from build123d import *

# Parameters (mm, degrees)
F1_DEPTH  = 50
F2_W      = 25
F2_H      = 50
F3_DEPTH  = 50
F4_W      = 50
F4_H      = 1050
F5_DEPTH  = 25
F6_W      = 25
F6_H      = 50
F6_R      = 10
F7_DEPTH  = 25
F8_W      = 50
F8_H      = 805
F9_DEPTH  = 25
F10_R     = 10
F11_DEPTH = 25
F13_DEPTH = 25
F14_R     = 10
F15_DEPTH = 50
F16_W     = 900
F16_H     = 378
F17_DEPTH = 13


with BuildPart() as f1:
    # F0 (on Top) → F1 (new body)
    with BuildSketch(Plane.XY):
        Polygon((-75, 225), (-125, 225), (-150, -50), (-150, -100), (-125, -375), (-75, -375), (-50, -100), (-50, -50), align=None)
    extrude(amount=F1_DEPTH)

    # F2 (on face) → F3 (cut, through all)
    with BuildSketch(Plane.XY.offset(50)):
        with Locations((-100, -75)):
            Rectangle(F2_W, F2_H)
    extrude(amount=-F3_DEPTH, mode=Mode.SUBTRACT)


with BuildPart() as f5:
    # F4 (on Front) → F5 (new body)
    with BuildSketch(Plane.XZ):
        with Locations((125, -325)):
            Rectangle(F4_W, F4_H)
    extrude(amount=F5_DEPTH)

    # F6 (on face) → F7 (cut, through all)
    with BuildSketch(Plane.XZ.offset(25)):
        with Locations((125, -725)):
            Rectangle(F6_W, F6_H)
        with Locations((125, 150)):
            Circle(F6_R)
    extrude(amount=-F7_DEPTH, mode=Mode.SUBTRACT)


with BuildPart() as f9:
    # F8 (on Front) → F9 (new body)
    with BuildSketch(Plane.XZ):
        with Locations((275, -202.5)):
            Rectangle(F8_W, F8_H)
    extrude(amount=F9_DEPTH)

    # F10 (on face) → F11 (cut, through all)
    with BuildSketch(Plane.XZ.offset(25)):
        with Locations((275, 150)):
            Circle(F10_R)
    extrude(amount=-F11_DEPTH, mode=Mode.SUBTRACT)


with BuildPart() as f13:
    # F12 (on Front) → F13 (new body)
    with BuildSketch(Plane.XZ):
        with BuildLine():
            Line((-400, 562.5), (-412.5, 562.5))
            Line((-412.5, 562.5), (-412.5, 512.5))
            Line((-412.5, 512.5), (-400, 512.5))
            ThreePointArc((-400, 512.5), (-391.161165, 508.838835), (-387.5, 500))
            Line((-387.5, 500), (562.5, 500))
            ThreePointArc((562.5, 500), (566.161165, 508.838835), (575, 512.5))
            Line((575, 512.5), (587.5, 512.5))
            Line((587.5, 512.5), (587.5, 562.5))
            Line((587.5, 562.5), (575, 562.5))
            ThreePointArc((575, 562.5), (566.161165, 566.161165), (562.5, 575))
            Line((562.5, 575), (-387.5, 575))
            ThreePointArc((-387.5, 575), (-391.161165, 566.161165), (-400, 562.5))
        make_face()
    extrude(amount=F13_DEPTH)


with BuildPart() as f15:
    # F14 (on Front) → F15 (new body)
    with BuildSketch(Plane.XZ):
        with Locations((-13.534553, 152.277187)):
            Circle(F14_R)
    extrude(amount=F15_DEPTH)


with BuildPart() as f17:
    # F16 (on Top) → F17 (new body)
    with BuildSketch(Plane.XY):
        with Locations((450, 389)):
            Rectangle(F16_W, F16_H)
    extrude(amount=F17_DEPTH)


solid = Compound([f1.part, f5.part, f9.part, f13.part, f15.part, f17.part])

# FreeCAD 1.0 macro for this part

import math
import FreeCAD as App
import Part
import Sketcher
Q = App.Units.Quantity

doc = App.newDocument("Part")
body = doc.addObject("PartDesign::Body", "Body")

sketch1 = doc.addObject("Sketcher::SketchObject", "Sketch")
body.addObject(sketch1)
sketch1.AttachmentSupport = (doc.XY_Plane, [""])
sketch1.MapMode = "FlatFace"
sketch1.addGeometry([
    Part.LineSegment(App.Vector(-75, 225, 0), App.Vector(-125, 225, 0)),
    Part.LineSegment(App.Vector(-125, 225, 0), App.Vector(-150, -50, 0)),
    Part.LineSegment(App.Vector(-150, -50, 0), App.Vector(-150, -100, 0)),
    Part.LineSegment(App.Vector(-150, -100, 0), App.Vector(-125, -375, 0)),
    Part.LineSegment(App.Vector(-125, -375, 0), App.Vector(-75, -375, 0)),
    Part.LineSegment(App.Vector(-75, -375, 0), App.Vector(-50, -100, 0)),
    Part.LineSegment(App.Vector(-50, -100, 0), App.Vector(-50, -50, 0)),
    Part.LineSegment(App.Vector(-50, -50, 0), App.Vector(-75, 225, 0)),
], False)
sketch1.addConstraint([
    Sketcher.Constraint("Coincident", 0, 2, 1, 1),
    Sketcher.Constraint("Coincident", 1, 2, 2, 1),
    Sketcher.Constraint("Coincident", 2, 2, 3, 1),
    Sketcher.Constraint("Coincident", 3, 2, 4, 1),
    Sketcher.Constraint("Coincident", 4, 2, 5, 1),
    Sketcher.Constraint("Coincident", 5, 2, 6, 1),
    Sketcher.Constraint("Coincident", 6, 2, 7, 1),
    Sketcher.Constraint("Coincident", 7, 2, 0, 1),
    Sketcher.Constraint("Horizontal", 0),
    Sketcher.Constraint("Vertical", 2),
    Sketcher.Constraint("Horizontal", 4),
    Sketcher.Constraint("Vertical", 6),
    Sketcher.Constraint("Parallel", 1, 5),
    Sketcher.Constraint("Parallel", 3, 7),
    Sketcher.Constraint("Horizontal", 2, 2, 5, 2),
    Sketcher.Constraint("Horizontal", 1, 2, 6, 2),
    Sketcher.Constraint("Vertical", 0, 2, 3, 2),
    Sketcher.Constraint("Vertical", 4, 2, 7, 2),
    Sketcher.Constraint("Equal", 4, 2),
    Sketcher.Constraint("DistanceX", 0, 2, 0, 1, Q("50 mm")),
    Sketcher.Constraint("DistanceX", 0, 2, -1, 1, Q("125 mm")),
    Sketcher.Constraint("DistanceY", -1, 1, 0, 2, Q("225 mm")),
    Sketcher.Constraint("DistanceX", 1, 2, -1, 1, Q("150 mm")),
    Sketcher.Constraint("DistanceY", 1, 2, -1, 1, Q("50 mm")),
])
pad1 = doc.addObject("PartDesign::Pad", "Pad")
body.addObject(pad1)
pad1.Profile = sketch1
pad1.Length = 50

sketch2 = doc.addObject("Sketcher::SketchObject", "Sketch001")
body.addObject(sketch2)
sketch2.AttachmentSupport = (doc.XY_Plane, [""])
sketch2.MapMode = "FlatFace"
sketch2.AttachmentOffset = App.Placement(App.Vector(0, 0, 50), App.Rotation())
sketch2.addGeometry([
    Part.LineSegment(App.Vector(-112, -50, 0), App.Vector(-112, -100, 0)),
    Part.LineSegment(App.Vector(-112, -100, 0), App.Vector(-88, -100, 0)),
    Part.LineSegment(App.Vector(-88, -100, 0), App.Vector(-88, -50, 0)),
    Part.LineSegment(App.Vector(-88, -50, 0), App.Vector(-112, -50, 0)),
], False)
sketch2.addConstraint([
    Sketcher.Constraint("Coincident", 0, 2, 1, 1),
    Sketcher.Constraint("Coincident", 1, 2, 2, 1),
    Sketcher.Constraint("Coincident", 2, 2, 3, 1),
    Sketcher.Constraint("Coincident", 3, 2, 0, 1),
    Sketcher.Constraint("Vertical", 0),
    Sketcher.Constraint("Horizontal", 1),
    Sketcher.Constraint("Vertical", 2),
    Sketcher.Constraint("Horizontal", 3),
    Sketcher.Constraint("DistanceX", 1, 1, 1, 2, Q("25 mm")),
    Sketcher.Constraint("DistanceY", 0, 2, 0, 1, Q("50 mm")),
    Sketcher.Constraint("DistanceY", 0, 2, -1, 1, Q("100 mm")),
    Sketcher.Constraint("DistanceX", 0, 2, -1, 1, Q("112.5 mm")),
])
pocket1 = doc.addObject("PartDesign::Pocket", "Pocket")
body.addObject(pocket1)
pocket1.Profile = sketch2
pocket1.Type = "ThroughAll"
body2 = doc.addObject("PartDesign::Body", "Body001")

sketch3 = doc.addObject("Sketcher::SketchObject", "Sketch002")
body2.addObject(sketch3)
sketch3.AttachmentSupport = (doc.getObject("XZ_Plane001"), [""])
sketch3.MapMode = "FlatFace"
sketch3.addGeometry([
    Part.LineSegment(App.Vector(100, 200, 0), App.Vector(100, -850, 0)),
    Part.LineSegment(App.Vector(100, -850, 0), App.Vector(150, -850, 0)),
    Part.LineSegment(App.Vector(150, -850, 0), App.Vector(150, 200, 0)),
    Part.LineSegment(App.Vector(150, 200, 0), App.Vector(100, 200, 0)),
], False)
sketch3.addConstraint([
    Sketcher.Constraint("Coincident", 0, 2, 1, 1),
    Sketcher.Constraint("Coincident", 1, 2, 2, 1),
    Sketcher.Constraint("Coincident", 2, 2, 3, 1),
    Sketcher.Constraint("Coincident", 3, 2, 0, 1),
    Sketcher.Constraint("Vertical", 0),
    Sketcher.Constraint("Horizontal", 1),
    Sketcher.Constraint("Vertical", 2),
    Sketcher.Constraint("Horizontal", 3),
    Sketcher.Constraint("DistanceX", 1, 1, 1, 2, Q("50 mm")),
    Sketcher.Constraint("DistanceY", 0, 2, 0, 1, Q("1050 mm")),
    Sketcher.Constraint("DistanceX", -1, 1, 0, 2, Q("100 mm")),
    Sketcher.Constraint("DistanceY", 0, 2, -1, 1, Q("850 mm")),
])
pad2 = doc.addObject("PartDesign::Pad", "Pad001")
body2.addObject(pad2)
pad2.Profile = sketch3
pad2.Length = 25

sketch4 = doc.addObject("Sketcher::SketchObject", "Sketch003")
body2.addObject(sketch4)
sketch4.AttachmentSupport = (doc.getObject("XZ_Plane001"), [""])
sketch4.MapMode = "FlatFace"
sketch4.AttachmentOffset = App.Placement(App.Vector(0, 0, 25), App.Rotation())
sketch4.addGeometry([
    Part.LineSegment(App.Vector(112, -700, 0), App.Vector(112, -750, 0)),
    Part.LineSegment(App.Vector(112, -750, 0), App.Vector(138, -750, 0)),
    Part.LineSegment(App.Vector(138, -750, 0), App.Vector(138, -700, 0)),
    Part.LineSegment(App.Vector(138, -700, 0), App.Vector(112, -700, 0)),
    Part.Circle(App.Vector(125, 150, 0), App.Vector(0, 0, 1), 10),
], False)
sketch4.addConstraint([
    Sketcher.Constraint("Coincident", 0, 2, 1, 1),
    Sketcher.Constraint("Coincident", 1, 2, 2, 1),
    Sketcher.Constraint("Coincident", 2, 2, 3, 1),
    Sketcher.Constraint("Coincident", 3, 2, 0, 1),
    Sketcher.Constraint("Vertical", 0),
    Sketcher.Constraint("Horizontal", 1),
    Sketcher.Constraint("Vertical", 2),
    Sketcher.Constraint("Horizontal", 3),
    Sketcher.Constraint("Diameter", 4, Q("20 mm")),
    Sketcher.Constraint("DistanceX", 1, 1, 1, 2, Q("25 mm")),
    Sketcher.Constraint("DistanceY", 0, 2, 0, 1, Q("50 mm")),
    Sketcher.Constraint("DistanceX", -1, 1, 4, 3, Q("125 mm")),
    Sketcher.Constraint("DistanceY", -1, 1, 4, 3, Q("150 mm")),
    Sketcher.Constraint("DistanceY", 0, 2, -1, 1, Q("750 mm")),
    Sketcher.Constraint("DistanceX", -1, 1, 0, 2, Q("112.5 mm")),
])
pocket2 = doc.addObject("PartDesign::Pocket", "Pocket001")
body2.addObject(pocket2)
pocket2.Profile = sketch4
pocket2.Type = "ThroughAll"
body3 = doc.addObject("PartDesign::Body", "Body002")

sketch5 = doc.addObject("Sketcher::SketchObject", "Sketch004")
body3.addObject(sketch5)
sketch5.AttachmentSupport = (doc.getObject("XZ_Plane002"), [""])
sketch5.MapMode = "FlatFace"
sketch5.addGeometry([
    Part.LineSegment(App.Vector(250, 200, 0), App.Vector(250, -605, 0)),
    Part.LineSegment(App.Vector(250, -605, 0), App.Vector(300, -605, 0)),
    Part.LineSegment(App.Vector(300, -605, 0), App.Vector(300, 200, 0)),
    Part.LineSegment(App.Vector(300, 200, 0), App.Vector(250, 200, 0)),
], False)
sketch5.addConstraint([
    Sketcher.Constraint("Coincident", 0, 2, 1, 1),
    Sketcher.Constraint("Coincident", 1, 2, 2, 1),
    Sketcher.Constraint("Coincident", 2, 2, 3, 1),
    Sketcher.Constraint("Coincident", 3, 2, 0, 1),
    Sketcher.Constraint("Vertical", 0),
    Sketcher.Constraint("Horizontal", 1),
    Sketcher.Constraint("Vertical", 2),
    Sketcher.Constraint("Horizontal", 3),
    Sketcher.Constraint("DistanceX", 1, 1, 1, 2, Q("50 mm")),
    Sketcher.Constraint("DistanceY", 0, 2, 0, 1, Q("805 mm")),
    Sketcher.Constraint("DistanceX", -1, 1, 0, 2, Q("250 mm")),
    Sketcher.Constraint("DistanceY", 0, 2, -1, 1, Q("605 mm")),
])
pad3 = doc.addObject("PartDesign::Pad", "Pad002")
body3.addObject(pad3)
pad3.Profile = sketch5
pad3.Length = 25

sketch6 = doc.addObject("Sketcher::SketchObject", "Sketch005")
body3.addObject(sketch6)
sketch6.AttachmentSupport = (doc.getObject("XZ_Plane002"), [""])
sketch6.MapMode = "FlatFace"
sketch6.AttachmentOffset = App.Placement(App.Vector(0, 0, 25), App.Rotation())
sketch6.addGeometry(Part.Circle(App.Vector(275, 150, 0), App.Vector(0, 0, 1), 10), False)
sketch6.addConstraint([
    Sketcher.Constraint("Diameter", 0, Q("20 mm")),
    Sketcher.Constraint("DistanceX", -1, 1, 0, 3, Q("275 mm")),
    Sketcher.Constraint("DistanceY", -1, 1, 0, 3, Q("150 mm")),
])
pocket3 = doc.addObject("PartDesign::Pocket", "Pocket002")
body3.addObject(pocket3)
pocket3.Profile = sketch6
pocket3.Type = "ThroughAll"
body4 = doc.addObject("PartDesign::Body", "Body003")

sketch7 = doc.addObject("Sketcher::SketchObject", "Sketch006")
body4.addObject(sketch7)
sketch7.AttachmentSupport = (doc.getObject("XZ_Plane003"), [""])
sketch7.MapMode = "FlatFace"
sketch7.addGeometry([
    Part.LineSegment(App.Vector(-400, 562, 0), App.Vector(-412, 562, 0)),
    Part.LineSegment(App.Vector(-412, 562, 0), App.Vector(-412, 512, 0)),
    Part.LineSegment(App.Vector(-412, 512, 0), App.Vector(-400, 512, 0)),
    Part.ArcOfCircle(Part.Circle(App.Vector(-400, 500, 0), App.Vector(0, 0, 1), 12), math.radians(0), math.radians(90)),
    Part.LineSegment(App.Vector(-388, 500, 0), App.Vector(562, 500, 0)),
    Part.ArcOfCircle(Part.Circle(App.Vector(575, 500, 0), App.Vector(0, 0, 1), 12), math.radians(90), math.radians(180)),
    Part.LineSegment(App.Vector(575, 512, 0), App.Vector(588, 512, 0)),
    Part.LineSegment(App.Vector(588, 512, 0), App.Vector(588, 562, 0)),
    Part.LineSegment(App.Vector(588, 562, 0), App.Vector(575, 562, 0)),
    Part.ArcOfCircle(Part.Circle(App.Vector(575, 575, 0), App.Vector(0, 0, 1), 12), math.radians(180), math.radians(270)),
    Part.LineSegment(App.Vector(562, 575, 0), App.Vector(-388, 575, 0)),
    Part.ArcOfCircle(Part.Circle(App.Vector(-400, 575, 0), App.Vector(0, 0, 1), 12), math.radians(-90), math.radians(0)),
], False)
sketch7.addConstraint([
    Sketcher.Constraint("Coincident", 0, 2, 1, 1),
    Sketcher.Constraint("Coincident", 1, 2, 2, 1),
    Sketcher.Constraint("Tangent", 2, 2, 3, 2),
    Sketcher.Constraint("Coincident", 3, 1, 4, 1),
    Sketcher.Constraint("Coincident", 4, 2, 5, 2),
    Sketcher.Constraint("Tangent", 5, 1, 6, 1),
    Sketcher.Constraint("Coincident", 6, 2, 7, 1),
    Sketcher.Constraint("Coincident", 7, 2, 8, 1),
    Sketcher.Constraint("Tangent", 8, 2, 9, 2),
    Sketcher.Constraint("Coincident", 9, 1, 10, 1),
    Sketcher.Constraint("Coincident", 10, 2, 11, 2),
    Sketcher.Constraint("Tangent", 11, 1, 0, 1),
    Sketcher.Constraint("Horizontal", 0),
    Sketcher.Constraint("Vertical", 1),
    Sketcher.Constraint("Horizontal", 2),
    Sketcher.Constraint("Horizontal", 4),
    Sketcher.Constraint("Horizontal", 6),
    Sketcher.Constraint("Vertical", 7),
    Sketcher.Constraint("Horizontal", 8),
    Sketcher.Constraint("Horizontal", 10),
    Sketcher.Constraint("Equal", 3, 5),
    Sketcher.Constraint("Equal", 5, 9),
    Sketcher.Constraint("Equal", 9, 11),
    Sketcher.Constraint("Horizontal", 3, 3, 5, 3),
    Sketcher.Constraint("Horizontal", 9, 3, 11, 3),
    Sketcher.Constraint("Horizontal", 5, 3, 3, 1),
    Sketcher.Constraint("Horizontal", 11, 3, 9, 1),
    Sketcher.Constraint("Vertical", 5, 3, 9, 3),
    Sketcher.Constraint("Vertical", 3, 3, 11, 3),
    Sketcher.Constraint("Equal", 2, 6),
    Sketcher.Constraint("Radius", 3, Q("12.499999 mm")),
    Sketcher.Constraint("DistanceX", 4, 1, 4, 2, Q("950 mm")),
    Sketcher.Constraint("DistanceY", 1, 2, 1, 1, Q("50 mm")),
    Sketcher.Constraint("DistanceX", 0, 2, 0, 1, Q("12.5 mm")),
    Sketcher.Constraint("DistanceX", 3, 3, -1, 1, Q("399.999999 mm")),
    Sketcher.Constraint("DistanceY", -1, 1, 3, 3, Q("500.000001 mm")),
])
pad4 = doc.addObject("PartDesign::Pad", "Pad003")
body4.addObject(pad4)
pad4.Profile = sketch7
pad4.Length = 25
body5 = doc.addObject("PartDesign::Body", "Body004")

sketch8 = doc.addObject("Sketcher::SketchObject", "Sketch007")
body5.addObject(sketch8)
sketch8.AttachmentSupport = (doc.getObject("XZ_Plane004"), [""])
sketch8.MapMode = "FlatFace"
sketch8.addGeometry(Part.Circle(App.Vector(-14, 152, 0), App.Vector(0, 0, 1), 10), False)
sketch8.addConstraint([
    Sketcher.Constraint("Diameter", 0, Q("20 mm")),
    Sketcher.Constraint("DistanceX", 0, 3, -1, 1, Q("13.534553 mm")),
    Sketcher.Constraint("DistanceY", -1, 1, 0, 3, Q("152.277187 mm")),
])
pad5 = doc.addObject("PartDesign::Pad", "Pad004")
body5.addObject(pad5)
pad5.Profile = sketch8
pad5.Length = 50
body6 = doc.addObject("PartDesign::Body", "Body005")

sketch9 = doc.addObject("Sketcher::SketchObject", "Sketch008")
body6.addObject(sketch9)
sketch9.AttachmentSupport = (doc.getObject("XY_Plane005"), [""])
sketch9.MapMode = "FlatFace"
sketch9.addGeometry([
    Part.LineSegment(App.Vector(0, 578, 0), App.Vector(0, 200, 0)),
    Part.LineSegment(App.Vector(0, 200, 0), App.Vector(900, 200, 0)),
    Part.LineSegment(App.Vector(900, 200, 0), App.Vector(900, 578, 0)),
    Part.LineSegment(App.Vector(900, 578, 0), App.Vector(0, 578, 0)),
], False)
sketch9.addConstraint([
    Sketcher.Constraint("Coincident", 0, 2, 1, 1),
    Sketcher.Constraint("Coincident", 1, 2, 2, 1),
    Sketcher.Constraint("Coincident", 2, 2, 3, 1),
    Sketcher.Constraint("Coincident", 3, 2, 0, 1),
    Sketcher.Constraint("Vertical", 0),
    Sketcher.Constraint("Horizontal", 1),
    Sketcher.Constraint("Vertical", 2),
    Sketcher.Constraint("Horizontal", 3),
    Sketcher.Constraint("PointOnObject", 0, 2, -2),
    Sketcher.Constraint("DistanceX", 1, 1, 1, 2, Q("900 mm")),
    Sketcher.Constraint("DistanceY", 0, 2, 0, 1, Q("378 mm")),
    Sketcher.Constraint("DistanceY", -1, 1, 0, 2, Q("200 mm")),
])
pad6 = doc.addObject("PartDesign::Pad", "Pad005")
body6.addObject(pad6)
pad6.Profile = sketch9
pad6.Length = 13

doc.recompute()
